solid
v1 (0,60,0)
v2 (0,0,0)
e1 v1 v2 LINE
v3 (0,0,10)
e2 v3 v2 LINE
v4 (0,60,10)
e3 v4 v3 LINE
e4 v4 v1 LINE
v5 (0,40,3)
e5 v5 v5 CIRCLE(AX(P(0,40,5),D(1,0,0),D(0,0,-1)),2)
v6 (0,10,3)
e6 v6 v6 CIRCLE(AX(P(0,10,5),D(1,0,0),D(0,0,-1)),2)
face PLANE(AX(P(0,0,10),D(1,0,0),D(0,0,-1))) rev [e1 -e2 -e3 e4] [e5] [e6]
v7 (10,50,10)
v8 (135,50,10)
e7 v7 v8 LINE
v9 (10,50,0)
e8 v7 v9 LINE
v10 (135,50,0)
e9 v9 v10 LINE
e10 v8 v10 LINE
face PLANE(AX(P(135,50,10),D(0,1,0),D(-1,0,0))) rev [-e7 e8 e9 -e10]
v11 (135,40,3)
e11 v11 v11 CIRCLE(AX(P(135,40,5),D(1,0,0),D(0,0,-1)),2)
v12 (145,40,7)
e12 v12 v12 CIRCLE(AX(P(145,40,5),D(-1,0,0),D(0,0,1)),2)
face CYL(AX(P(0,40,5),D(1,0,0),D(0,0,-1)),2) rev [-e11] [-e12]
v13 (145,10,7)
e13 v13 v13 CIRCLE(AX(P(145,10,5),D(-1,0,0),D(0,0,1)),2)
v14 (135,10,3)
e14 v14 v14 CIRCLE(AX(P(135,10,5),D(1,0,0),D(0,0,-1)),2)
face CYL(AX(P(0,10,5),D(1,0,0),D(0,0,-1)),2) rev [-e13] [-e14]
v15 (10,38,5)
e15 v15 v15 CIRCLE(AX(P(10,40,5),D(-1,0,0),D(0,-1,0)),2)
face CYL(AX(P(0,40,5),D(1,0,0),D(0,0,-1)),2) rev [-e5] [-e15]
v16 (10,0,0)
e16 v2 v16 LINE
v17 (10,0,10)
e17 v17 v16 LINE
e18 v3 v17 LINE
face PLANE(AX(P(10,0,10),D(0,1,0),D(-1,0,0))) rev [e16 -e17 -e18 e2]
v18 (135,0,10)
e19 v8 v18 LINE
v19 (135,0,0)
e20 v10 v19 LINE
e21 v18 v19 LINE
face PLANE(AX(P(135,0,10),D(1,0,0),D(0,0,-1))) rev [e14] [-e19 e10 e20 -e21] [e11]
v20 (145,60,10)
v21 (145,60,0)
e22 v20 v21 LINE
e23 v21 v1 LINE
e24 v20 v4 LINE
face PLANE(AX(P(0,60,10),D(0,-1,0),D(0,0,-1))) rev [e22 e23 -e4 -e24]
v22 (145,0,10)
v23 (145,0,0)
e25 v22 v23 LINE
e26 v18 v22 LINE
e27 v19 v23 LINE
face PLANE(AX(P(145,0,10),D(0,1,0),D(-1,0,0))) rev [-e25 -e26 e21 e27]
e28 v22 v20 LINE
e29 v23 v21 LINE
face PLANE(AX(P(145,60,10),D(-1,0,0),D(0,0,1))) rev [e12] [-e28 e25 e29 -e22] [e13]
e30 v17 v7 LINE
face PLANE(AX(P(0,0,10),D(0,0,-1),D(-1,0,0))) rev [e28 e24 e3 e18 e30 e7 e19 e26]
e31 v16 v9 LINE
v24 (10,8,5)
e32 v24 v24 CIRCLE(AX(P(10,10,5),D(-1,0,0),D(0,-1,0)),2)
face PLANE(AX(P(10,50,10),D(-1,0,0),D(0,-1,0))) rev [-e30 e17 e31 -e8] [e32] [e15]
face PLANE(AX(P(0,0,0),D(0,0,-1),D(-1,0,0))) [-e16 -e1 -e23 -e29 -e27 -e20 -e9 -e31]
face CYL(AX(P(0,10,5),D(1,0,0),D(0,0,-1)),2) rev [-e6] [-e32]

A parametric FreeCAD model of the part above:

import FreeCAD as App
import Part
import Sketcher
Q = App.Units.Quantity


def add_polygon(sketch, points):
    """Adds a closed chain of lines whose ends are joined by coincident constraints."""
    first, n = sketch.GeometryCount, len(points)
    for a, b in zip(points, points[1:] + points[:1]):
        sketch.addGeometry(Part.LineSegment(App.Vector(*a, 0), App.Vector(*b, 0)), False)
    for i in range(n):
        sketch.addConstraint(Sketcher.Constraint("Coincident", first + i, 2, first + (i + 1) % n, 1))

doc = App.newDocument("Part")
body = doc.addObject("PartDesign::Body", "Body")

sketch1 = body.newObject("Sketcher::SketchObject", "Sketch")
sketch1.AttachmentSupport = (doc.getObject("XY_Plane"), [""])
sketch1.MapMode = "FlatFace"
add_polygon(sketch1, [(0, 60), (0, 0), (10, 0), (10, 50), (135, 50), (135, 0), (145, 0), (145, 60)])
sketch1.addConstraint(Sketcher.Constraint("Vertical", 0))
sketch1.addConstraint(Sketcher.Constraint("Horizontal", 1))
sketch1.addConstraint(Sketcher.Constraint("Vertical", 2))
sketch1.addConstraint(Sketcher.Constraint("Horizontal", 3))
sketch1.addConstraint(Sketcher.Constraint("Vertical", 4))
sketch1.addConstraint(Sketcher.Constraint("Horizontal", 5))
sketch1.addConstraint(Sketcher.Constraint("Vertical", 6))
sketch1.addConstraint(Sketcher.Constraint("Horizontal", 7))
sketch1.addConstraint(Sketcher.Constraint("Coincident", 0, 2, -1, 1))
sketch1.addConstraint(Sketcher.Constraint("PointOnObject", 4, 2, -1))
sketch1.addConstraint(Sketcher.Constraint("Equal", 1, 5))
sketch1.addConstraint(Sketcher.Constraint("DistanceX", 1, 1, 1, 2, Q("10 mm")))
sketch1.addConstraint(Sketcher.Constraint("DistanceX", 3, 1, 3, 2, Q("125 mm")))
sketch1.addConstraint(Sketcher.Constraint("DistanceY", 0, 2, 0, 1, Q("60 mm")))
sketch1.addConstraint(Sketcher.Constraint("DistanceY", 2, 1, 2, 2, Q("50 mm")))
pad1 = body.newObject("PartDesign::Pad", "Pad")
pad1.Profile = sketch1
pad1.Length = 10

sketch2 = body.newObject("Sketcher::SketchObject", "Sketch001")
sketch2.AttachmentSupport = (doc.getObject("YZ_Plane"), [""])
sketch2.MapMode = "FlatFace"
sketch2.AttachmentOffset = App.Placement(App.Vector(0, 0, 145), App.Rotation())
sketch2.addGeometry(Part.Circle(App.Vector(10, 5, 0), App.Vector(0, 0, 1), 2), False)
sketch2.addGeometry(Part.Circle(App.Vector(40, 5, 0), App.Vector(0, 0, 1), 2), False)
sketch2.addConstraint(Sketcher.Constraint("Equal", 0, 1))
sketch2.addConstraint(Sketcher.Constraint("Horizontal", 0, 3, 1, 3))
sketch2.addConstraint(Sketcher.Constraint("Diameter", 0, Q("4 mm")))
sketch2.addConstraint(Sketcher.Constraint("DistanceX", -1, 1, 0, 3, Q("10 mm")))
sketch2.addConstraint(Sketcher.Constraint("DistanceY", -1, 1, 0, 3, Q("5 mm")))
sketch2.addConstraint(Sketcher.Constraint("DistanceX", -1, 1, 1, 3, Q("40 mm")))
pocket1 = body.newObject("PartDesign::Pocket", "Pocket")
pocket1.Profile = sketch2
pocket1.Type = "ThroughAll"
pocket1.Midplane = True

doc.recompute()
